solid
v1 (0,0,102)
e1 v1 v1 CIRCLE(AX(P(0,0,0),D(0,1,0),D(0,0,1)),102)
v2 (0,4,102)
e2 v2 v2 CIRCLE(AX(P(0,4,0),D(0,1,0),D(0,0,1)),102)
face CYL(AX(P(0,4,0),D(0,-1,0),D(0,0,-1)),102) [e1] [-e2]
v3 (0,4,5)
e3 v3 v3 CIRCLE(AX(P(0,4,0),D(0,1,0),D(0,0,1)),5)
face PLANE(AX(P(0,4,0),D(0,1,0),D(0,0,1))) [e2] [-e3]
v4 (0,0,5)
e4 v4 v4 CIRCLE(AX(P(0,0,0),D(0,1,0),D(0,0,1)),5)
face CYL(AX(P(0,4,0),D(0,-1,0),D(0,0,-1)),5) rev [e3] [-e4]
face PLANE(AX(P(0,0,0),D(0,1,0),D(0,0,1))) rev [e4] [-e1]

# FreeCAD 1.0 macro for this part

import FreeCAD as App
import Part
import Sketcher

doc = App.newDocument("Part")
body = doc.addObject("PartDesign::Body", "Body")

# Sketch on XZ plane
sketch1 = doc.addObject("Sketcher::SketchObject", "Sketch")
body.addObject(sketch1)
sketch1.AttachmentSupport = (doc.XZ_Plane, [""])
sketch1.MapMode = "FlatFace"
sketch1.addGeometry([
    Part.Circle(App.Vector(0, 0, 0), App.Vector(0, 0, 1), 102),
    Part.Circle(App.Vector(0, 0, 0), App.Vector(0, 0, 1), 5),
], False)
sketch1.addConstraint([
    Sketcher.Constraint("Coincident", 0, 3, -1, 1),
    Sketcher.Constraint("Coincident", 1, 3, -1, 1),
    Sketcher.Constraint("Diameter", 0, 204.0),
    Sketcher.Constraint("Diameter", 1, 10.0),
])
pad1 = doc.addObject("PartDesign::Pad", "Pad")
body.addObject(pad1)
pad1.Profile = sketch1
pad1.Length = 4
pad1.Reversed = True

doc.recompute()
